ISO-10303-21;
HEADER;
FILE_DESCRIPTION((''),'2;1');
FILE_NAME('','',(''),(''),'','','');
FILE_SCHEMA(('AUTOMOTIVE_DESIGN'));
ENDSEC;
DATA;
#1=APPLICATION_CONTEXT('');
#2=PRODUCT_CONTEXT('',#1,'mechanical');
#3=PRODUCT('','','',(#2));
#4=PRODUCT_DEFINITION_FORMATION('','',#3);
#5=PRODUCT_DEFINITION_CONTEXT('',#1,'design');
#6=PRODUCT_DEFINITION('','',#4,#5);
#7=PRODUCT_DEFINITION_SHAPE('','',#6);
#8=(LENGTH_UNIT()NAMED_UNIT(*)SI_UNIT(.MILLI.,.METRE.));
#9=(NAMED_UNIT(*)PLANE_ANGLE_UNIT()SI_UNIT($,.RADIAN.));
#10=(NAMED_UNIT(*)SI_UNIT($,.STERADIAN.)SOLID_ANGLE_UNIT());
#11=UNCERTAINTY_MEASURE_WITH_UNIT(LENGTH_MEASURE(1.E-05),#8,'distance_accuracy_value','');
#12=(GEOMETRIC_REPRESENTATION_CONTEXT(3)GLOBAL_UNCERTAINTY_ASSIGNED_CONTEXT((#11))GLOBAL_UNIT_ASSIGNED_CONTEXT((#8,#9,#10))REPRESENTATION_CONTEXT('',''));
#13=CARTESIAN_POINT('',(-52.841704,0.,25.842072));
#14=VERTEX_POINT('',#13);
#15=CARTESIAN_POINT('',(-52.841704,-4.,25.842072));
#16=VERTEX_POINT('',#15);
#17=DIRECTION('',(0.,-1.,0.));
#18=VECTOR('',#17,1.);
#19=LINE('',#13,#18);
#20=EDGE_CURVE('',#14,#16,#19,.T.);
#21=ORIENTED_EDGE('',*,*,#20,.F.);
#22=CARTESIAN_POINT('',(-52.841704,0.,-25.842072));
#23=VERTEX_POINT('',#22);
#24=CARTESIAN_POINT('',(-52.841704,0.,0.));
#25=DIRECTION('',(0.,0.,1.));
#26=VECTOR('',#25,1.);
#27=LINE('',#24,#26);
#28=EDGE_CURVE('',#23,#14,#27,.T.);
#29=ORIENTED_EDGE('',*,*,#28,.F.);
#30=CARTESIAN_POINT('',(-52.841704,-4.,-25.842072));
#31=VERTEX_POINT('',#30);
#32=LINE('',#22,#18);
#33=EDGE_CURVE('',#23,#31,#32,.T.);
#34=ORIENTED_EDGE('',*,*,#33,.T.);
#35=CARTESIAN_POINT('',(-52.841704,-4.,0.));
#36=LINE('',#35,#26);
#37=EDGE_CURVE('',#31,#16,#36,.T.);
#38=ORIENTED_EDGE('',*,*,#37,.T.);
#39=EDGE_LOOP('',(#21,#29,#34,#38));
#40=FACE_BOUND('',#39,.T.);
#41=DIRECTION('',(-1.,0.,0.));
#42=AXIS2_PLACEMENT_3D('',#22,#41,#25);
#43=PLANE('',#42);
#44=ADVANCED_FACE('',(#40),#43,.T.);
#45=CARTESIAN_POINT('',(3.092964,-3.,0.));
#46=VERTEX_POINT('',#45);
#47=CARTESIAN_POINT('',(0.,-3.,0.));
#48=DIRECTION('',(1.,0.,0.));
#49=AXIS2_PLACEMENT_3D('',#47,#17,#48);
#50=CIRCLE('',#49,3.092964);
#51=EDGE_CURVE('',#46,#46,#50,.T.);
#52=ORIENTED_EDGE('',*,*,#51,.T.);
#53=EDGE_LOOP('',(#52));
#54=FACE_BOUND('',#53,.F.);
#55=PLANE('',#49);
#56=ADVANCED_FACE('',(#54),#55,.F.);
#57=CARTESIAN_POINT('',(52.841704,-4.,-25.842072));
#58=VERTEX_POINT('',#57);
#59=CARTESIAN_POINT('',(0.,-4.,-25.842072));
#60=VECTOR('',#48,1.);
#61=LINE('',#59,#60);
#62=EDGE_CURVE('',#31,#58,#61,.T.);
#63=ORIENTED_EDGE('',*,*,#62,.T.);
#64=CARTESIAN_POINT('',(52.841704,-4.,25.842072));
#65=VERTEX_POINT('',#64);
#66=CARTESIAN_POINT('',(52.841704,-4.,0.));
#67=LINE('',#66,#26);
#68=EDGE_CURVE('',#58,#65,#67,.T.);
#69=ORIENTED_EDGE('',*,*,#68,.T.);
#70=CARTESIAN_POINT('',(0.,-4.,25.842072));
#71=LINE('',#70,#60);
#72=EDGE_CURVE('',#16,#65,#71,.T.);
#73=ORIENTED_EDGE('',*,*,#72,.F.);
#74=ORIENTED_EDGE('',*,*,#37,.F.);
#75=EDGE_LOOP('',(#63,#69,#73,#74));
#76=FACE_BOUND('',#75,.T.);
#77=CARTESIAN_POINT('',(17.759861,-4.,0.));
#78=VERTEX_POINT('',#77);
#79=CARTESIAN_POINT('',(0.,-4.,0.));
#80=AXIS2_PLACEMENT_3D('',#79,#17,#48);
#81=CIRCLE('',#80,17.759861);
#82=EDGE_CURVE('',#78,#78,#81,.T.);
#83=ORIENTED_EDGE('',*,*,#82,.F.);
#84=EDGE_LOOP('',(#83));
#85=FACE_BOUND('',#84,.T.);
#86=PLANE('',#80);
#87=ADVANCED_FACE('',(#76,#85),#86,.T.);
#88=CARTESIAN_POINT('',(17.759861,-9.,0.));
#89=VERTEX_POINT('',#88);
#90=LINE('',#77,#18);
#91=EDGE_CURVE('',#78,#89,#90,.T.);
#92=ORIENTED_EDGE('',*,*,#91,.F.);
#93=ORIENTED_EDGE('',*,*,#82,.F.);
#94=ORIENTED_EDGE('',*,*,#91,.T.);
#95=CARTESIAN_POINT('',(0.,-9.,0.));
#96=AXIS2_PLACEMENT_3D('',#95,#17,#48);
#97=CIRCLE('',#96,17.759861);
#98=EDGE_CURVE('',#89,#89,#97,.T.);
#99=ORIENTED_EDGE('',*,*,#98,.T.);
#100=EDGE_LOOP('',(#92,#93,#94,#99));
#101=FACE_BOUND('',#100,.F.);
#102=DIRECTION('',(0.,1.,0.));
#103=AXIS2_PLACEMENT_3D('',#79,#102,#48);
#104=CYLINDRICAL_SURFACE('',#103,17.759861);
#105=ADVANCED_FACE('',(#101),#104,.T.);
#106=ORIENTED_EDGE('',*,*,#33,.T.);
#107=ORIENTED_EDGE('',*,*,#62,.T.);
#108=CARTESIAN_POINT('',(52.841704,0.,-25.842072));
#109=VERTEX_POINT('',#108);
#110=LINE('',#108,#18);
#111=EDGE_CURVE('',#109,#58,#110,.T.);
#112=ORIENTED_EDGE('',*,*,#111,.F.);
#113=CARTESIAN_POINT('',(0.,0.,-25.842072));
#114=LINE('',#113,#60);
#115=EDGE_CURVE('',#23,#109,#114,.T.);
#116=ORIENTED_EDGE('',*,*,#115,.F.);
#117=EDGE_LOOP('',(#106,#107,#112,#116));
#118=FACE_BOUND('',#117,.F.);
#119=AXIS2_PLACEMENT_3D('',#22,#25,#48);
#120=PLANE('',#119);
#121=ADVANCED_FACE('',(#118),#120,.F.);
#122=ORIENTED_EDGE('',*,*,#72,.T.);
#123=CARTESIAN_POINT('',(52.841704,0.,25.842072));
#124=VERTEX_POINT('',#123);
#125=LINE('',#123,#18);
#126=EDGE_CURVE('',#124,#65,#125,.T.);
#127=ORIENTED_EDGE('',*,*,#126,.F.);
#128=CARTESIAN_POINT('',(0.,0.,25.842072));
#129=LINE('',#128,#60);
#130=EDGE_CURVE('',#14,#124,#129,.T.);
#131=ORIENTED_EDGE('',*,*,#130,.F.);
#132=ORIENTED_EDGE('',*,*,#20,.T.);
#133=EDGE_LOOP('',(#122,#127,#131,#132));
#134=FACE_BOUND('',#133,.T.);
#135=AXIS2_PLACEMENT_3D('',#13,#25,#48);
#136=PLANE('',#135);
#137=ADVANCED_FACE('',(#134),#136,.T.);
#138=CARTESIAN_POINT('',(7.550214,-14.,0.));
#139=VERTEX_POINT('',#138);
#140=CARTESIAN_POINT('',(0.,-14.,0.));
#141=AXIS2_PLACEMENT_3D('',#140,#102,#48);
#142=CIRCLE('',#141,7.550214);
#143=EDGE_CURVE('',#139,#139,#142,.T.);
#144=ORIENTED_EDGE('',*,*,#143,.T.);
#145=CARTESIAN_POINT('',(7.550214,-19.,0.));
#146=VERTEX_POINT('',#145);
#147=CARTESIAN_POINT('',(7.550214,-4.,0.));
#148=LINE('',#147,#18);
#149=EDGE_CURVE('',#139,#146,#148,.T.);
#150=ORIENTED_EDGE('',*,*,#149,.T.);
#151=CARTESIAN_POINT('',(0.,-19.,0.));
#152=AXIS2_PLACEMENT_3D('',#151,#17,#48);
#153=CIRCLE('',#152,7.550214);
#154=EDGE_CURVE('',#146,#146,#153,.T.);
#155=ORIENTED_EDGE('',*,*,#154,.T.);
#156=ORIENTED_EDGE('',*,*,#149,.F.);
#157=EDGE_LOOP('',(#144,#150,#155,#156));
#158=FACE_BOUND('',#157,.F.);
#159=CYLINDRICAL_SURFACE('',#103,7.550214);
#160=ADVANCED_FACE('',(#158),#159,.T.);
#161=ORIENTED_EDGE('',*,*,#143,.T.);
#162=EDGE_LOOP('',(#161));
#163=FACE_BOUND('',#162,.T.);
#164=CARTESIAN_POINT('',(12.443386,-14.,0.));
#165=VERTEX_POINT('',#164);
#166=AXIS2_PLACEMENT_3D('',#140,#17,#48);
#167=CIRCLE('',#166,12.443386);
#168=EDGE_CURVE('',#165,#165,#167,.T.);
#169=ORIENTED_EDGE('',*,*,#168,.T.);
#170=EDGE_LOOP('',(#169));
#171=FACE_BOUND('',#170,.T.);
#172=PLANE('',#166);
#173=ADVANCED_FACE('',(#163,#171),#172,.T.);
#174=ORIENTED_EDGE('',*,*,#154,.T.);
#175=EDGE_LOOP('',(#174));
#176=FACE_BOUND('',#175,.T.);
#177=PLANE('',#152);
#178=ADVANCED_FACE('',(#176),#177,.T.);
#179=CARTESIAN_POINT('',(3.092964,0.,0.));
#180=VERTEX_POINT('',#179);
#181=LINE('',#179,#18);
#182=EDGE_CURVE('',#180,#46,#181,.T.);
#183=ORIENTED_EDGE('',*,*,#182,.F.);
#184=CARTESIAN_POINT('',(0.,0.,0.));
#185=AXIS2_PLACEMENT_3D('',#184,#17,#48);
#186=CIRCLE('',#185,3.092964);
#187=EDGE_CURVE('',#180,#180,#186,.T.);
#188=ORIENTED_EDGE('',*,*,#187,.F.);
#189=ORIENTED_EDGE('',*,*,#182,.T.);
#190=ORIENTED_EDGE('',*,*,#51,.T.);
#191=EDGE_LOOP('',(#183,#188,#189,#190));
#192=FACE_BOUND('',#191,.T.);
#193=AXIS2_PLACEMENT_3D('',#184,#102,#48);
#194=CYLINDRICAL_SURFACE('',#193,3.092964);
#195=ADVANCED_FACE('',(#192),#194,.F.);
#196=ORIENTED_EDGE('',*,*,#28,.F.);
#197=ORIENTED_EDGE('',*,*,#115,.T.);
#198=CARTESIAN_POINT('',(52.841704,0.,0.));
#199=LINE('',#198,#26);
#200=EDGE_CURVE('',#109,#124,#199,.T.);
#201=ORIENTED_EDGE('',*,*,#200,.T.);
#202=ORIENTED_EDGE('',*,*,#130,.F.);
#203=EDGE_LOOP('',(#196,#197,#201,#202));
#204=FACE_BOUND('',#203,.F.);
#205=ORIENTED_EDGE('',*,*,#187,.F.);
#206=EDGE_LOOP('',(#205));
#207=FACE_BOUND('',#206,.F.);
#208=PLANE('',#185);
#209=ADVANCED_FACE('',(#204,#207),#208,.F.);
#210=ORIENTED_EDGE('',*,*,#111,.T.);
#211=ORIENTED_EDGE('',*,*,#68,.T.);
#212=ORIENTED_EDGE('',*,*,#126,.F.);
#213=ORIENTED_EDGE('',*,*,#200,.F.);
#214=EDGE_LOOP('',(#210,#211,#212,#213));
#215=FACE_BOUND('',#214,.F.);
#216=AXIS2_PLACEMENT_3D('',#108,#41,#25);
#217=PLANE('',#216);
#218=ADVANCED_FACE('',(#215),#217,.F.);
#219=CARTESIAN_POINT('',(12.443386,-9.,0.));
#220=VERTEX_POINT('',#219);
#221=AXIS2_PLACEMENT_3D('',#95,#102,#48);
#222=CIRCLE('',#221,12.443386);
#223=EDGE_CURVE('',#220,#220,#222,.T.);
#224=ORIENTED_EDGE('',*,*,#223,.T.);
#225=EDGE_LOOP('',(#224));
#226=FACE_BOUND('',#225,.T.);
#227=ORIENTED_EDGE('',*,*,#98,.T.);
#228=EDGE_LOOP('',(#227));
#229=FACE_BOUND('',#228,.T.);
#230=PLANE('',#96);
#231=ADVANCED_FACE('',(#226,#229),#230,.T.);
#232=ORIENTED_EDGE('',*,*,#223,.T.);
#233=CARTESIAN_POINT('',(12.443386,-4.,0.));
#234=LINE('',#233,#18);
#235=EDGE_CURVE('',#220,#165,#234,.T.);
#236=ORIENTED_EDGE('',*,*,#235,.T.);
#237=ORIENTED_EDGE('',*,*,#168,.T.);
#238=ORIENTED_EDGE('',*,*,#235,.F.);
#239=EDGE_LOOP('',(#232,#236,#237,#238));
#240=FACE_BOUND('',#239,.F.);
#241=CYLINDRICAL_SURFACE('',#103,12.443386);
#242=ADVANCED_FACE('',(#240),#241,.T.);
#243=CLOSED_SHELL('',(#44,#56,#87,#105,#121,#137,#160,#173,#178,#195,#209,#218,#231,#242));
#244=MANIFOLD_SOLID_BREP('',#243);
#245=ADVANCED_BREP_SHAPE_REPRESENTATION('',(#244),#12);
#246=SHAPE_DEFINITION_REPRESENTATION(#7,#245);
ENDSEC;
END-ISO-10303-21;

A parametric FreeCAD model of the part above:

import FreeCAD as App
import Part
import Sketcher
from FreeCAD import Vector
Q = App.Units.Quantity

doc = App.newDocument("Part")
body = doc.addObject("PartDesign::Body", "Body")

# Sketch on XZ plane
sketch1 = doc.addObject("Sketcher::SketchObject", "Sketch")
body.addObject(sketch1)
sketch1.AttachmentSupport = (doc.XZ_Plane, [""])
sketch1.MapMode = "FlatFace"
sketch1.addGeometry([
    Part.LineSegment(Vector(-53, 26, 0), Vector(-53, -26, 0)),
    Part.LineSegment(Vector(-53, -26, 0), Vector(53, -26, 0)),
    Part.LineSegment(Vector(53, -26, 0), Vector(53, 26, 0)),
    Part.LineSegment(Vector(53, 26, 0), Vector(-53, 26, 0)),
], False)
sketch1.addConstraint([
    Sketcher.Constraint("Coincident", 0, 2, 1, 1),
    Sketcher.Constraint("Coincident", 1, 2, 2, 1),
    Sketcher.Constraint("Coincident", 2, 2, 3, 1),
    Sketcher.Constraint("Coincident", 3, 2, 0, 1),
    Sketcher.Constraint("Vertical", 0),
    Sketcher.Constraint("Horizontal", 1),
    Sketcher.Constraint("Vertical", 2),
    Sketcher.Constraint("Horizontal", 3),
    Sketcher.Constraint("Symmetric", 0, 2, 2, 2, -1, 1),
    Sketcher.Constraint("DistanceX", 1, 1, 1, 2, Q("105.683409 mm")),
    Sketcher.Constraint("DistanceY", 0, 2, 0, 1, Q("51.684145 mm")),
])
pad1 = doc.addObject("PartDesign::Pad", "Pad")
body.addObject(pad1)
pad1.Profile = sketch1
pad1.Length = 4

# Sketch on XZ plane
sketch2 = doc.addObject("Sketcher::SketchObject", "Sketch001")
body.addObject(sketch2)
sketch2.AttachmentSupport = (doc.XZ_Plane, [""])
sketch2.MapMode = "FlatFace"
sketch2.AttachmentOffset = App.Placement(Vector(0, 0, 4), App.Rotation())
sketch2.addGeometry(Part.Circle(Vector(0, 0, 0), Vector(0, 0, 1), 18), False)
sketch2.addConstraint([
    Sketcher.Constraint("Coincident", 0, 3, -1, 1),
    Sketcher.Constraint("Diameter", 0, Q("35.519723 mm")),
])
pad2 = doc.addObject("PartDesign::Pad", "Pad001")
body.addObject(pad2)
pad2.Profile = sketch2
pad2.Length = 5

# Sketch on XZ plane
sketch3 = doc.addObject("Sketcher::SketchObject", "Sketch002")
body.addObject(sketch3)
sketch3.AttachmentSupport = (doc.XZ_Plane, [""])
sketch3.MapMode = "FlatFace"
sketch3.AttachmentOffset = App.Placement(Vector(0, 0, 4), App.Rotation())
sketch3.addGeometry(Part.Circle(Vector(0, 0, 0), Vector(0, 0, 1), 12), False)
sketch3.addConstraint([
    Sketcher.Constraint("Coincident", 0, 3, -1, 1),
    Sketcher.Constraint("Diameter", 0, Q("24.886772 mm")),
])
pad3 = doc.addObject("PartDesign::Pad", "Pad002")
body.addObject(pad3)
pad3.Profile = sketch3
pad3.Length = 10

# Sketch on XZ plane
sketch4 = doc.addObject("Sketcher::SketchObject", "Sketch003")
body.addObject(sketch4)
sketch4.AttachmentSupport = (doc.XZ_Plane, [""])
sketch4.MapMode = "FlatFace"
sketch4.AttachmentOffset = App.Placement(Vector(0, 0, 4), App.Rotation())
sketch4.addGeometry(Part.Circle(Vector(0, 0, 0), Vector(0, 0, 1), 8), False)
sketch4.addConstraint([
    Sketcher.Constraint("Coincident", 0, 3, -1, 1),
    Sketcher.Constraint("Diameter", 0, Q("15.100428 mm")),
])
pad4 = doc.addObject("PartDesign::Pad", "Pad003")
body.addObject(pad4)
pad4.Profile = sketch4
pad4.Length = 15

# Sketch on XZ plane
sketch5 = doc.addObject("Sketcher::SketchObject", "Sketch004")
body.addObject(sketch5)
sketch5.AttachmentSupport = (doc.XZ_Plane, [""])
sketch5.MapMode = "FlatFace"
sketch5.addGeometry(Part.Circle(Vector(0, 0, 0), Vector(0, 0, 1), 3.1), False)
sketch5.addConstraint([
    Sketcher.Constraint("Coincident", 0, 3, -1, 1),
    Sketcher.Constraint("Diameter", 0, Q("6.185929 mm")),
])
pocket1 = doc.addObject("PartDesign::Pocket", "Pocket")
body.addObject(pocket1)
pocket1.Profile = sketch5
pocket1.Length = 3
pocket1.Reversed = True

doc.recompute()
